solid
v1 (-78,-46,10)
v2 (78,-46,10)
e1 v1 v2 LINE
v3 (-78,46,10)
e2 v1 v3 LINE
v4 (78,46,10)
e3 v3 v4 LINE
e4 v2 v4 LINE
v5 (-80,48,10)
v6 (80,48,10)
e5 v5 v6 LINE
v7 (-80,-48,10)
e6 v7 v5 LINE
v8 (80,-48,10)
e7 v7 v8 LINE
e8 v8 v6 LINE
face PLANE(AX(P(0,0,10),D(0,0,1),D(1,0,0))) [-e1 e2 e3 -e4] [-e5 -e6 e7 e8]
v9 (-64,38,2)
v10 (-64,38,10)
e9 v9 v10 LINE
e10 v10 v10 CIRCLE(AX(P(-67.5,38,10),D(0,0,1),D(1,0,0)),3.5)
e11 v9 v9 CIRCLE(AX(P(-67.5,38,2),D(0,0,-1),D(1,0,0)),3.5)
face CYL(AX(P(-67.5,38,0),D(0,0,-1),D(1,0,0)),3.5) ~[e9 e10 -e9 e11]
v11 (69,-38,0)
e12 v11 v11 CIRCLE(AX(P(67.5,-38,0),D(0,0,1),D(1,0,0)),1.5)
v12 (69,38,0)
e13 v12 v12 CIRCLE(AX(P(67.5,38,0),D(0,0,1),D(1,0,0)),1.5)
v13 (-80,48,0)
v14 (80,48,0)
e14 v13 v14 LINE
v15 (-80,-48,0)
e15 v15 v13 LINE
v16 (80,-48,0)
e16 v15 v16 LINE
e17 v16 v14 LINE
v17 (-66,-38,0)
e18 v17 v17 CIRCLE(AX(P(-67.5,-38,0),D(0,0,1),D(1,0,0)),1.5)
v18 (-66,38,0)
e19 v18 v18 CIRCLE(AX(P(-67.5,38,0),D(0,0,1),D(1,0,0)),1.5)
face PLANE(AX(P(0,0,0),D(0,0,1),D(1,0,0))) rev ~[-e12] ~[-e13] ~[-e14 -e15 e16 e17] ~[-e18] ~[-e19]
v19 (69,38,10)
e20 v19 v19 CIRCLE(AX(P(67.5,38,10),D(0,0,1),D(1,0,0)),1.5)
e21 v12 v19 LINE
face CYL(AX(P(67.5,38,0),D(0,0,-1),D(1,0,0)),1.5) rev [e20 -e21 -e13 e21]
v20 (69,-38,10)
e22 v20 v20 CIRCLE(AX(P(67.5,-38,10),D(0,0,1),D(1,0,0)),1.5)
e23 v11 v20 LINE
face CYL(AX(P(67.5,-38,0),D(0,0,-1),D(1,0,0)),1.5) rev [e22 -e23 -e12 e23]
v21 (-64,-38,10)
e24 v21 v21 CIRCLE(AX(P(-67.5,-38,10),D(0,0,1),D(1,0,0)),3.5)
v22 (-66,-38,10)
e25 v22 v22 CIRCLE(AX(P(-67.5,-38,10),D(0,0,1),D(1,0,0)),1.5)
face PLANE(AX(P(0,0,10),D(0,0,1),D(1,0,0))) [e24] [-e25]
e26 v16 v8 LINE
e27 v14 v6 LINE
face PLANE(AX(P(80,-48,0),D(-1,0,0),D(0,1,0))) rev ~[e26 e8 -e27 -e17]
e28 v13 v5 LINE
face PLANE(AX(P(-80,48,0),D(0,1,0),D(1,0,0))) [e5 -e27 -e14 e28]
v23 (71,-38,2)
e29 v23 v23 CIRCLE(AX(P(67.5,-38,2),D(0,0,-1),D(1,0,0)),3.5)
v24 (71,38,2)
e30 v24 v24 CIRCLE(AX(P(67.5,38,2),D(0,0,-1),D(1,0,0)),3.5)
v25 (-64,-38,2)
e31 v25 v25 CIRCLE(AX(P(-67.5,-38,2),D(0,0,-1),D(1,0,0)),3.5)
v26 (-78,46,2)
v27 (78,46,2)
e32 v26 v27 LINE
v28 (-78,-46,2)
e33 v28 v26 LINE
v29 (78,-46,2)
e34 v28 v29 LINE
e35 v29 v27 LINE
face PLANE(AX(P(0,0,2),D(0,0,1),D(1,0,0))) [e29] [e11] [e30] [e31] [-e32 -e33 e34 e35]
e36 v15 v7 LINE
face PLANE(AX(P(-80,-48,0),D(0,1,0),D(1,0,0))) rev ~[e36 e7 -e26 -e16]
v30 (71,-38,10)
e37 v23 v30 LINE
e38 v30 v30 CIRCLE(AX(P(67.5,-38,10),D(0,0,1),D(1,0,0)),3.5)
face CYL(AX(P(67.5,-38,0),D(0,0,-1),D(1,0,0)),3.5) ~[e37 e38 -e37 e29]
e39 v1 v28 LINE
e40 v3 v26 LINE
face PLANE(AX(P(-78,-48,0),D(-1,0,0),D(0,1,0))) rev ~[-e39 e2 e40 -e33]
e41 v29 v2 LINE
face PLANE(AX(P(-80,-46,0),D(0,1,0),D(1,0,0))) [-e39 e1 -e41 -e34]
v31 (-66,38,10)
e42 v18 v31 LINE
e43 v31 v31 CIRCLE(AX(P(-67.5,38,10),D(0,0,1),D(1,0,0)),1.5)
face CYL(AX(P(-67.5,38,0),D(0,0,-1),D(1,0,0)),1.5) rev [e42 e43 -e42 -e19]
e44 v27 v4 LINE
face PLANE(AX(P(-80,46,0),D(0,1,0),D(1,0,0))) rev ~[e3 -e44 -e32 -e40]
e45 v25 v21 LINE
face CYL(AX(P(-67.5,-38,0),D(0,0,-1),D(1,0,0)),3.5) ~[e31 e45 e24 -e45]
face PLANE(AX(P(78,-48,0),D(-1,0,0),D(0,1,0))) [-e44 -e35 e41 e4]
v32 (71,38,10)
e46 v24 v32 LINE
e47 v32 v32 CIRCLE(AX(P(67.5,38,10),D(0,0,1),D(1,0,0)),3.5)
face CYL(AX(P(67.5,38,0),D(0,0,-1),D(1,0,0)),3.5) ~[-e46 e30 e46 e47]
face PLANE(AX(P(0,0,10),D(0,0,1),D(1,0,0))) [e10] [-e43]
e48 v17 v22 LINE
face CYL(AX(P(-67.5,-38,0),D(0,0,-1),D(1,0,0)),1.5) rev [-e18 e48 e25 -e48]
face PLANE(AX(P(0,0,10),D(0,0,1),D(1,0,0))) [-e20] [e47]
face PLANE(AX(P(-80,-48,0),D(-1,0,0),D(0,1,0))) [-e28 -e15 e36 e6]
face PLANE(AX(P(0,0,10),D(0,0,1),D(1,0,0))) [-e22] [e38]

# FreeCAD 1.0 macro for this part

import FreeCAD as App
import Part
import Sketcher

V = App.Vector
Q = App.Units.Quantity


def faces_at(feature, points):
    """Names of the faces that lie closest to the given points."""
    faces = feature.Shape.Faces
    near = lambda p: min(range(len(faces)), key=lambda i: faces[i].distToShape(Part.Vertex(*p))[0])
    return sorted({f"Face{near(p) + 1}" for p in points})

doc = App.newDocument("Part")
body = doc.addObject("PartDesign::Body", "Body")

# Sketch on XY plane
sketch1 = doc.addObject("Sketcher::SketchObject", "Sketch")
body.addObject(sketch1)
sketch1.AttachmentSupport = (doc.XY_Plane, [""])
sketch1.MapMode = "FlatFace"
sketch1.addGeometry([
    Part.LineSegment(V(-80, 48, 0), V(-80, -48, 0)),  # 0
    Part.LineSegment(V(-80, -48, 0), V(80, -48, 0)),  # 1
    Part.LineSegment(V(80, -48, 0), V(80, 48, 0)),  # 2
    Part.LineSegment(V(80, 48, 0), V(-80, 48, 0)),  # 3
    Part.Circle(V(-67.5, -38, 0), V(0, 0, 1), 1.5),  # 4
    Part.Circle(V(67.5, -38, 0), V(0, 0, 1), 1.5),  # 5
    Part.Circle(V(-67.5, 38, 0), V(0, 0, 1), 1.5),  # 6
    Part.Circle(V(67.5, 38, 0), V(0, 0, 1), 1.5),  # 7
], False)
sketch1.addConstraint([
    Sketcher.Constraint("Coincident", 0, 2, 1, 1),
    Sketcher.Constraint("Coincident", 1, 2, 2, 1),
    Sketcher.Constraint("Coincident", 2, 2, 3, 1),
    Sketcher.Constraint("Coincident", 3, 2, 0, 1),
    Sketcher.Constraint("Vertical", 0),
    Sketcher.Constraint("Horizontal", 1),
    Sketcher.Constraint("Vertical", 2),
    Sketcher.Constraint("Horizontal", 3),
    Sketcher.Constraint("Equal", 4, 5),
    Sketcher.Constraint("Equal", 5, 6),
    Sketcher.Constraint("Equal", 6, 7),
    Sketcher.Constraint("Symmetric", 5, 3, 6, 3, -1, 1),
    Sketcher.Constraint("Symmetric", 4, 3, 7, 3, -1, 1),
    Sketcher.Constraint("Symmetric", 0, 2, 2, 2, -1, 1),
    Sketcher.Constraint("Symmetric", 4, 3, 5, 3, -2),
    Sketcher.Constraint("Diameter", 4, Q("3 mm")),
    Sketcher.Constraint("DistanceX", 1, 1, 1, 2, Q("160 mm")),
    Sketcher.Constraint("DistanceY", 0, 2, 0, 1, Q("96 mm")),
    Sketcher.Constraint("DistanceY", 4, 3, -1, 1, Q("38 mm")),
    Sketcher.Constraint("DistanceX", 4, 3, 5, 3, Q("135 mm")),
])
pad1 = doc.addObject("PartDesign::Pad", "Pad")
body.addObject(pad1)
pad1.Profile = sketch1
pad1.Length = 10
doc.recompute()

thickness = doc.addObject("PartDesign::Thickness", "Thickness")
body.addObject(thickness)
thickness.Base = (pad1, faces_at(pad1, [(0, 0, 10)]))
thickness.Value = 2
thickness.Reversed = True
thickness.Join = "Arc"

doc.recompute()
